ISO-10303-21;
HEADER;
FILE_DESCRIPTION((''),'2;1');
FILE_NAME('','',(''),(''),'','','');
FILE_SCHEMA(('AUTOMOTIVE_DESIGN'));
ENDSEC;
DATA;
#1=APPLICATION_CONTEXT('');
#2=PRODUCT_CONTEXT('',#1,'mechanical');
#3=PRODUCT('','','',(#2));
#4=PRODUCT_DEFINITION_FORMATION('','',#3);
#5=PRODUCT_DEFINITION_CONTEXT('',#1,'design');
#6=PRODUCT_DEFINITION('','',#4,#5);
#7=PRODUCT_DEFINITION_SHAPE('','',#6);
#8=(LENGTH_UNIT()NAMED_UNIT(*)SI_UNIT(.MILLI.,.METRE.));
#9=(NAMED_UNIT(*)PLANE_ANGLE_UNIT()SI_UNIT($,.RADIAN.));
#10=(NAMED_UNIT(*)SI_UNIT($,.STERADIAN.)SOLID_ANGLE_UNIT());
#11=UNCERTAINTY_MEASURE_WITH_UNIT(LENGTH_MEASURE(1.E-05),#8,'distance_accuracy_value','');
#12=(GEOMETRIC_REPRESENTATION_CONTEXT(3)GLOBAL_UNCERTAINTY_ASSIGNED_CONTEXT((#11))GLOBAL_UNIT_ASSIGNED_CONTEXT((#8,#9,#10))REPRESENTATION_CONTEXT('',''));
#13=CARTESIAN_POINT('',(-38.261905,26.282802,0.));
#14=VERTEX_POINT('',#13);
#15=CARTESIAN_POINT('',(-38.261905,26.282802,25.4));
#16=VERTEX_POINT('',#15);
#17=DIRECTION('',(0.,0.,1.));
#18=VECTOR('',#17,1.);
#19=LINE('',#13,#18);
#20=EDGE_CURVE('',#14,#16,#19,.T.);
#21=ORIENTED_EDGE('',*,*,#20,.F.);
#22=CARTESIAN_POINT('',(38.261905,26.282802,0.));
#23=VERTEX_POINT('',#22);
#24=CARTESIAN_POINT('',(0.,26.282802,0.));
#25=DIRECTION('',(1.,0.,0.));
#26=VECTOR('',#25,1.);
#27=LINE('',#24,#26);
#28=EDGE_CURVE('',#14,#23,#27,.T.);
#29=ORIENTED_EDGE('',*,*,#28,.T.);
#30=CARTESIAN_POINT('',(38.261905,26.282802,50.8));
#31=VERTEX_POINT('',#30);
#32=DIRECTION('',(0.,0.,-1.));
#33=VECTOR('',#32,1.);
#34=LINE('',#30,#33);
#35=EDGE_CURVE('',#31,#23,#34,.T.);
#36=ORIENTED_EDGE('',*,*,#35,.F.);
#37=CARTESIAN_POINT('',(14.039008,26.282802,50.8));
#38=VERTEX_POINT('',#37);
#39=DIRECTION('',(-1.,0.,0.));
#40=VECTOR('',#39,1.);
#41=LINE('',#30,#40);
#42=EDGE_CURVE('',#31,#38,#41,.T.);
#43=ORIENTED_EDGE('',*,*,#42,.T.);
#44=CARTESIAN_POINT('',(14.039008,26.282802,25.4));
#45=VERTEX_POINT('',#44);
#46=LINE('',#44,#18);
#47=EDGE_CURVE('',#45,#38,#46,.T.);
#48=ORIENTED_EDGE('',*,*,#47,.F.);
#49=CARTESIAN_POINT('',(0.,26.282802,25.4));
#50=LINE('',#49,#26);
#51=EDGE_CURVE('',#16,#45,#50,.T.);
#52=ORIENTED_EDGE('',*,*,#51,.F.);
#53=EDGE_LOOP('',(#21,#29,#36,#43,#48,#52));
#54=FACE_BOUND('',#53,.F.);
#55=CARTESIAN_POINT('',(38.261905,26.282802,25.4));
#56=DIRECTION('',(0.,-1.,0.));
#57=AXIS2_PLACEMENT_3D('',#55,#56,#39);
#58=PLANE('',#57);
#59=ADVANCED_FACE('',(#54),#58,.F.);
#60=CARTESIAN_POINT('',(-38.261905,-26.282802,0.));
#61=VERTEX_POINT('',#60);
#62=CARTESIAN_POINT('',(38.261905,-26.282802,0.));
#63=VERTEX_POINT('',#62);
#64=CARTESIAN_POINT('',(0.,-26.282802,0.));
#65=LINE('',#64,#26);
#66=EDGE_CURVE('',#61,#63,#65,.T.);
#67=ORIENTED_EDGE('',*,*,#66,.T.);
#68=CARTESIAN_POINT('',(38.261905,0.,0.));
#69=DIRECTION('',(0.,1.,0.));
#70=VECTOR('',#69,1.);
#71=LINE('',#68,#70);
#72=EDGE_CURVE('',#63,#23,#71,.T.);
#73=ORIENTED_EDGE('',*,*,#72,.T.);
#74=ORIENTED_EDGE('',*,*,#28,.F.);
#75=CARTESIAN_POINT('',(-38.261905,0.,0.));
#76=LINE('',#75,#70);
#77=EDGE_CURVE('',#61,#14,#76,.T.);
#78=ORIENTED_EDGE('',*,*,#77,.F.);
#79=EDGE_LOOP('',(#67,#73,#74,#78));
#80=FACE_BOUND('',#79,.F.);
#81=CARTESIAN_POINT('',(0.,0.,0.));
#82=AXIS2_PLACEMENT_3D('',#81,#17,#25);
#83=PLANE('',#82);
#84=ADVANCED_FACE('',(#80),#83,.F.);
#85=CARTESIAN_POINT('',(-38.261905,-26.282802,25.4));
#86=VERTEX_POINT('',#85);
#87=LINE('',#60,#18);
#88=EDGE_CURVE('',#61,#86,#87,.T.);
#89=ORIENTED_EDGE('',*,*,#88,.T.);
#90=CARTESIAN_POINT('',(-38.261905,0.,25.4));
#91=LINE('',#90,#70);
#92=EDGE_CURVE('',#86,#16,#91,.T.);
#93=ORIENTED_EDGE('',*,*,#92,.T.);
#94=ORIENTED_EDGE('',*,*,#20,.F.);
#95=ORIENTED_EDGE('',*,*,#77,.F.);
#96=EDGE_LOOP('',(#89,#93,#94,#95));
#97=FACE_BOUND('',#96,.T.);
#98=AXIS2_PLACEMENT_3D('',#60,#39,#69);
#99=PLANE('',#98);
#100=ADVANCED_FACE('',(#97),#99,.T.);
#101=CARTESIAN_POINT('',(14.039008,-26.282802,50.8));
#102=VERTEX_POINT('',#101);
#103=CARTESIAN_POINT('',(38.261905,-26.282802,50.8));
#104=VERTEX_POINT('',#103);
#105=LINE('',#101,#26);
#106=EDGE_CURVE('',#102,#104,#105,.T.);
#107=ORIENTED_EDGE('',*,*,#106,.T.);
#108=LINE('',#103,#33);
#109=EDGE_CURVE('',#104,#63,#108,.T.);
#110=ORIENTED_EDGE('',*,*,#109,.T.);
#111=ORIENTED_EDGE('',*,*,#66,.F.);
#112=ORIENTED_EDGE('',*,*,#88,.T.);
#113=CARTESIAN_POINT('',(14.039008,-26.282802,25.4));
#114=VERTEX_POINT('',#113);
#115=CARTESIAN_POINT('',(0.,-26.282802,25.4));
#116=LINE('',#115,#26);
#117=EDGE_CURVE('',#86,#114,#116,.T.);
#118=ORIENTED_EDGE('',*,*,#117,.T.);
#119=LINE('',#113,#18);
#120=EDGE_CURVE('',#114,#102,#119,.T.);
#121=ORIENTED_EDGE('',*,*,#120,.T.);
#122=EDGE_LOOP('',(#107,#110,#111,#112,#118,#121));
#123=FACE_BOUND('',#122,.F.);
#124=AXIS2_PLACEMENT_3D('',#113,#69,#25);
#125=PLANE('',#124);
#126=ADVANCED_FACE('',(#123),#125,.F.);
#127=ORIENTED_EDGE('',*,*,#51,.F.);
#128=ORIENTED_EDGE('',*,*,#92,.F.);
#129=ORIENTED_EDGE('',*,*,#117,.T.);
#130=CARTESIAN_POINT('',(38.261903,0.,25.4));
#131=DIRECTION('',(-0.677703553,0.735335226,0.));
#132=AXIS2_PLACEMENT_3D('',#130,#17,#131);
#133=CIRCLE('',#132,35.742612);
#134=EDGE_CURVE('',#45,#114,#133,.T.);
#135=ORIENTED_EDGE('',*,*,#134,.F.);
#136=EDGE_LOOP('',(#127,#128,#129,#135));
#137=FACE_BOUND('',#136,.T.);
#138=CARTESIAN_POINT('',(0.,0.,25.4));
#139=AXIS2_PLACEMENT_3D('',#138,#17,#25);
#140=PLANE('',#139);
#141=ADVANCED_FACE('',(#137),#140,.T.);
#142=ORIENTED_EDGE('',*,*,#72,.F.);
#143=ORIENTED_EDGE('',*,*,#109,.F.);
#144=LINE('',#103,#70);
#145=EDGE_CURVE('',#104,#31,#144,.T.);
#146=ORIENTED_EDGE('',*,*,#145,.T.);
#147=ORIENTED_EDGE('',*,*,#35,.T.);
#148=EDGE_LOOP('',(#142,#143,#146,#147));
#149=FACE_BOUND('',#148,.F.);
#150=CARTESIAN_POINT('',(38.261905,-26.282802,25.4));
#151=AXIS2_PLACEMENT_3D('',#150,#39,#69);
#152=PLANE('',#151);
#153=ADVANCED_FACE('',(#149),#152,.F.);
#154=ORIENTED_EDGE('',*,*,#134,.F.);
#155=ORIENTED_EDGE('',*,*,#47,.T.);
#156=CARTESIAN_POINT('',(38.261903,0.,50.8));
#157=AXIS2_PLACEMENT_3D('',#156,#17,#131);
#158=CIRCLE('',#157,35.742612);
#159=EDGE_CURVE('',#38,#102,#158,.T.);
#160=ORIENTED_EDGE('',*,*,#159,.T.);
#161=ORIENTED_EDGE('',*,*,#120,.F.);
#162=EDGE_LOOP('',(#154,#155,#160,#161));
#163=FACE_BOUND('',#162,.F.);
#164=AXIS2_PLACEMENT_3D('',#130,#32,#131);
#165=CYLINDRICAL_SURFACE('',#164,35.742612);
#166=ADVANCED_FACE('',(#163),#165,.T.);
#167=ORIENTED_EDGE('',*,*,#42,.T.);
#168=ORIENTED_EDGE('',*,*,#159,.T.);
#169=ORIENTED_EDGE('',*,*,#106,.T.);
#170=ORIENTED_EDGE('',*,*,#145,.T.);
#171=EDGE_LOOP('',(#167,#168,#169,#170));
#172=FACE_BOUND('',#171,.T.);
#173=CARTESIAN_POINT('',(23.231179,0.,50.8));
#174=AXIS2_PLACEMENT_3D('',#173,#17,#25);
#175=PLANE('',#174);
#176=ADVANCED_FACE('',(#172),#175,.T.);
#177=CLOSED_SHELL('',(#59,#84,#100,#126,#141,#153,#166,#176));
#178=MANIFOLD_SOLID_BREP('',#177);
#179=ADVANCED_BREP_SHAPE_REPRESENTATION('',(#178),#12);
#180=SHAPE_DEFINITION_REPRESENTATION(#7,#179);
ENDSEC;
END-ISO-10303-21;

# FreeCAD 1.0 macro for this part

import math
import FreeCAD as App
import Part
import Sketcher
from FreeCAD import Vector
Q = App.Units.Quantity


def add_polygon(sketch, points):
    """Adds a closed chain of lines whose ends are joined by coincident constraints."""
    first, n = sketch.GeometryCount, len(points)
    for a, b in zip(points, points[1:] + points[:1]):
        sketch.addGeometry(Part.LineSegment(App.Vector(*a, 0), App.Vector(*b, 0)), False)
    for i in range(n):
        sketch.addConstraint(Sketcher.Constraint("Coincident", first + i, 2, first + (i + 1) % n, 1))

doc = App.newDocument("Part")
body = doc.addObject("PartDesign::Body", "Body")

sketch1 = doc.addObject("Sketcher::SketchObject", "Sketch")
body.addObject(sketch1)
sketch1.AttachmentSupport = (doc.XY_Plane, [""])
sketch1.MapMode = "FlatFace"
add_polygon(sketch1, [(-38.261905, 26.282802), (-38.261905, -26.282802), (38.261905, -26.282802), (38.261905, 26.282802)])
sketch1.addConstraint([
    Sketcher.Constraint("Vertical", 0),
    Sketcher.Constraint("Horizontal", 1),
    Sketcher.Constraint("Vertical", 2),
    Sketcher.Constraint("Horizontal", 3),
    Sketcher.Constraint("Symmetric", 0, 2, 2, 2, -1, 1),
    Sketcher.Constraint("DistanceX", 1, 1, 1, 2, Q("76.52381 mm")),
    Sketcher.Constraint("DistanceY", 0, 2, -1, 1, Q("26.282802 mm")),
])
pad1 = doc.addObject("PartDesign::Pad", "Pad")
body.addObject(pad1)
pad1.Profile = sketch1
pad1.Length = Q("1 in")

sketch2 = doc.addObject("Sketcher::SketchObject", "Sketch001")
body.addObject(sketch2)
sketch2.AttachmentSupport = (doc.XY_Plane, [""])
sketch2.MapMode = "FlatFace"
sketch2.AttachmentOffset = App.Placement(Vector(0, 0, 1 * 25.4), App.Rotation())
sketch2.addGeometry([
    Part.LineSegment(Vector(38.261905, 26.282802, 0), Vector(14.039008, 26.282802, 0)),
    Part.ArcOfCircle(Part.Circle(Vector(38.261903, 0, 0), Vector(0, 0, 1), 35.742612), math.radians(132.66445), math.radians(227.33555)),
    Part.LineSegment(Vector(14.039008, -26.282802, 0), Vector(38.261905, -26.282802, 0)),
    Part.LineSegment(Vector(38.261905, -26.282802, 0), Vector(38.261905, 26.282802, 0)),
], False)
sketch2.addConstraint([
    Sketcher.Constraint("Coincident", 0, 2, 1, 1),
    Sketcher.Constraint("Coincident", 1, 2, 2, 1),
    Sketcher.Constraint("Coincident", 2, 2, 3, 1),
    Sketcher.Constraint("Coincident", 3, 2, 0, 1),
    Sketcher.Constraint("Horizontal", 0),
    Sketcher.Constraint("Horizontal", 2),
    Sketcher.Constraint("Vertical", 3),
    Sketcher.Constraint("Symmetric", 0, 2, 1, 2, -1),
    Sketcher.Constraint("Vertical", 1, 3, 2, 2),
    Sketcher.Constraint("Radius", 1, Q("35.742612 mm")),
    Sketcher.Constraint("DistanceY", -1, 1, 0, 2, Q("26.282802 mm")),
    Sketcher.Constraint("DistanceX", -1, 1, 0, 2, Q("14.039008 mm")),
])
pad2 = doc.addObject("PartDesign::Pad", "Pad001")
body.addObject(pad2)
pad2.Profile = sketch2
pad2.Length = Q("1 in")

doc.recompute()
